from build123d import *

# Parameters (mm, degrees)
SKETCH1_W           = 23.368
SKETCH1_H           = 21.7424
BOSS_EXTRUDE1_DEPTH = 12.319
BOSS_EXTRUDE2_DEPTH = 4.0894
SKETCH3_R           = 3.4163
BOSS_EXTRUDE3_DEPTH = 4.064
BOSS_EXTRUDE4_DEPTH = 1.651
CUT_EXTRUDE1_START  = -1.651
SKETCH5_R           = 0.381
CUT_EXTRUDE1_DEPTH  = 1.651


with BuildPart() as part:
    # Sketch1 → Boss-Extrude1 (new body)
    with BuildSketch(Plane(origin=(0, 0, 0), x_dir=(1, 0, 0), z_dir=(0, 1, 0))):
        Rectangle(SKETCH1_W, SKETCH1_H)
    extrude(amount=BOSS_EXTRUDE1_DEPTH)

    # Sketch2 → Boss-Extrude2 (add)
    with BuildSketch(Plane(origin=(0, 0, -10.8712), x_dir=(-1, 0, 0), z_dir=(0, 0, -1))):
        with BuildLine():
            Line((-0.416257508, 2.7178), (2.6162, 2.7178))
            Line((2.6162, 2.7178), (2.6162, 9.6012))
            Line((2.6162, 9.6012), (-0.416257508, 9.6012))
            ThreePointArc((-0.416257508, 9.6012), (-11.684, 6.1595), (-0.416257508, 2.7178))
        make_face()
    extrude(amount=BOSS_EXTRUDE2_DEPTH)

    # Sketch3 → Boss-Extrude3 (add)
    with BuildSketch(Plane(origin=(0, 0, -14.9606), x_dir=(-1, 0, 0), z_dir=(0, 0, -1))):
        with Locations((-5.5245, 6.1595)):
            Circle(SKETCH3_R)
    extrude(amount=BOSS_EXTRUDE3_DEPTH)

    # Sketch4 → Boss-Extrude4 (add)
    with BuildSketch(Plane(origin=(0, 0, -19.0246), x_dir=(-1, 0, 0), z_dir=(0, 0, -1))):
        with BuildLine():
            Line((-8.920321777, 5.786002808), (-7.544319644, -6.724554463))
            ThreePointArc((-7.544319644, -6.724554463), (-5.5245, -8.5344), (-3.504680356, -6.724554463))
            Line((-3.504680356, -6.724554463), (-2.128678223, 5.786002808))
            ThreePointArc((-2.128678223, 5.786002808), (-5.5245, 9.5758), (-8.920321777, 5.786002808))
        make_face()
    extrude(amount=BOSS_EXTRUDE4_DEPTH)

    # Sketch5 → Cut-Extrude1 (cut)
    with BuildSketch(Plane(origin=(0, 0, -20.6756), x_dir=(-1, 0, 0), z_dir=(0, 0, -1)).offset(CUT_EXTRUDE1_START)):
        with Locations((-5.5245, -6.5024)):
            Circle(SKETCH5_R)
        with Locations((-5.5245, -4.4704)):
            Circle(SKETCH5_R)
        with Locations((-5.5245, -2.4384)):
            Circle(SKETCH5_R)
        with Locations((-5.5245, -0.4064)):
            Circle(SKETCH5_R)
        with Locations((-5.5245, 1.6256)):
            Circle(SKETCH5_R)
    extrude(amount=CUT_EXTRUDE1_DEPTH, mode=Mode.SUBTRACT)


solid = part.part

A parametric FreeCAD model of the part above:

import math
import FreeCAD as App
import Part
import Sketcher
Q = App.Units.Quantity


def add_polygon(sketch, points):
    """Adds a closed chain of lines whose ends are joined by coincident constraints."""
    first, n = sketch.GeometryCount, len(points)
    for a, b in zip(points, points[1:] + points[:1]):
        sketch.addGeometry(Part.LineSegment(App.Vector(*a, 0), App.Vector(*b, 0)), False)
    for i in range(n):
        sketch.addConstraint(Sketcher.Constraint("Coincident", first + i, 2, first + (i + 1) % n, 1))

doc = App.newDocument("Part")
body = doc.addObject("PartDesign::Body", "Body")

sketch1 = body.newObject("Sketcher::SketchObject", "Sketch")
sketch1.AttachmentSupport = (doc.getObject("XZ_Plane"), [""])
sketch1.MapMode = "FlatFace"
add_polygon(sketch1, [(-11.684, -10.8712), (-11.684, 10.8712), (11.684, 10.8712), (11.684, -10.8712)])
sketch1.addConstraint([
    Sketcher.Constraint("Vertical", 0),
    Sketcher.Constraint("Horizontal", 1),
    Sketcher.Constraint("Vertical", 2),
    Sketcher.Constraint("Horizontal", 3),
    Sketcher.Constraint("Symmetric", 0, 2, 2, 2, -1, 1),
    Sketcher.Constraint("DistanceX", 1, 1, 1, 2, Q("0.92 in")),
    Sketcher.Constraint("DistanceY", 0, 1, 0, 2, Q("0.856 in")),
])
pad1 = body.newObject("PartDesign::Pad", "Pad")
pad1.Profile = sketch1
pad1.Length = Q("0.485 in")
pad1.Reversed = True

sketch2 = body.newObject("Sketcher::SketchObject", "Sketch001")
sketch2.AttachmentSupport = (doc.getObject("XY_Plane"), [""])
sketch2.MapMode = "FlatFace"
sketch2.AttachmentOffset = App.Placement(App.Vector(0, 0, -0.428 * 25.4), App.Rotation())
sketch2.addGeometry([
    Part.LineSegment(App.Vector(0.416258, 2.7178, 0), App.Vector(-2.6162, 2.7178, 0)),
    Part.LineSegment(App.Vector(-2.6162, 2.7178, 0), App.Vector(-2.6162, 9.6012, 0)),
    Part.LineSegment(App.Vector(-2.6162, 9.6012, 0), App.Vector(0.416258, 9.6012, 0)),
    Part.ArcOfCircle(Part.Circle(App.Vector(5.5245, 6.1595, 0), App.Vector(0, 0, 1), 6.1595), math.radians(-146.029714), math.radians(146.029714)),
], False)
sketch2.addConstraint([
    Sketcher.Constraint("Coincident", 0, 2, 1, 1),
    Sketcher.Constraint("Coincident", 1, 2, 2, 1),
    Sketcher.Constraint("Coincident", 2, 2, 3, 2),
    Sketcher.Constraint("Coincident", 3, 1, 0, 1),
    Sketcher.Constraint("Horizontal", 0),
    Sketcher.Constraint("Vertical", 1),
    Sketcher.Constraint("Horizontal", 2),
    Sketcher.Constraint("Vertical", 2, 2, 3, 1),
    Sketcher.Constraint("Radius", 3, Q("0.2425 in")),
    Sketcher.Constraint("DistanceY", 1, 1, 1, 2, Q("0.271 in")),
    Sketcher.Constraint("DistanceX", 0, 2, -1, 1, Q("0.103 in")),
    Sketcher.Constraint("DistanceY", -1, 1, 0, 2, Q("0.107 in")),
    Sketcher.Constraint("DistanceX", -1, 1, 3, 3, Q("0.2175 in")),
])
pad2 = body.newObject("PartDesign::Pad", "Pad001")
pad2.Profile = sketch2
pad2.Length = Q("0.161 in")
pad2.Reversed = True

sketch3 = body.newObject("Sketcher::SketchObject", "Sketch002")
sketch3.AttachmentSupport = (doc.getObject("XY_Plane"), [""])
sketch3.MapMode = "FlatFace"
sketch3.AttachmentOffset = App.Placement(App.Vector(0, 0, -0.589 * 25.4), App.Rotation())
sketch3.addGeometry(Part.Circle(App.Vector(5.5245, 6.1595, 0), App.Vector(0, 0, 1), 3.4163), False)
sketch3.addConstraint([
    Sketcher.Constraint("Diameter", 0, Q("0.269 in")),
    Sketcher.Constraint("DistanceX", -1, 1, 0, 3, Q("0.2175 in")),
    Sketcher.Constraint("DistanceY", -1, 1, 0, 3, Q("0.2425 in")),
])
pad3 = body.newObject("PartDesign::Pad", "Pad002")
pad3.Profile = sketch3
pad3.Length = Q("0.16 in")
pad3.Reversed = True

sketch4 = body.newObject("Sketcher::SketchObject", "Sketch003")
sketch4.AttachmentSupport = (doc.getObject("XY_Plane"), [""])
sketch4.MapMode = "FlatFace"
sketch4.AttachmentOffset = App.Placement(App.Vector(0, 0, -0.749 * 25.4), App.Rotation())
sketch4.addGeometry([
    Part.LineSegment(App.Vector(8.920322, 5.786003, 0), App.Vector(7.54432, -6.724554, 0)),
    Part.ArcOfCircle(Part.Circle(App.Vector(5.5245, -6.5024, 0), App.Vector(0, 0, 1), 2.032), math.radians(-173.723422), math.radians(-6.276578)),
    Part.LineSegment(App.Vector(3.50468, -6.724554, 0), App.Vector(2.128678, 5.786003, 0)),
    Part.ArcOfCircle(Part.Circle(App.Vector(5.5245, 6.1595, 0), App.Vector(0, 0, 1), 3.4163), math.radians(-6.276578), math.radians(186.276578)),
], False)
sketch4.addConstraint([
    Sketcher.Constraint("Tangent", 0, 2, 1, 2),
    Sketcher.Constraint("Tangent", 1, 1, 2, 1),
    Sketcher.Constraint("Tangent", 2, 2, 3, 2),
    Sketcher.Constraint("Tangent", 3, 1, 0, 1),
    Sketcher.Constraint("Horizontal", 0, 2, 1, 1),
    Sketcher.Constraint("Radius", 1, Q("0.08 in")),
    Sketcher.Constraint("Radius", 3, Q("0.1345 in")),
    Sketcher.Constraint("DistanceY", 1, 3, -1, 1, Q("0.256 in")),
    Sketcher.Constraint("DistanceX", -1, 1, 1, 3, Q("0.2175 in")),
    Sketcher.Constraint("DistanceY", -1, 1, 3, 3, Q("0.2425 in")),
])
pad4 = body.newObject("PartDesign::Pad", "Pad003")
pad4.Profile = sketch4
pad4.Length = Q("0.065 in")
pad4.Reversed = True

sketch5 = body.newObject("Sketcher::SketchObject", "Sketch004")
sketch5.AttachmentSupport = (doc.getObject("XY_Plane"), [""])
sketch5.MapMode = "FlatFace"
sketch5.AttachmentOffset = App.Placement(App.Vector(0, 0, -0.749 * 25.4), App.Rotation())
sketch5.addGeometry([
    Part.Circle(App.Vector(5.5245, -6.5024, 0), App.Vector(0, 0, 1), 0.381),
    Part.Circle(App.Vector(5.5245, -4.4704, 0), App.Vector(0, 0, 1), 0.381),
    Part.Circle(App.Vector(5.5245, -2.4384, 0), App.Vector(0, 0, 1), 0.381),
    Part.Circle(App.Vector(5.5245, -0.4064, 0), App.Vector(0, 0, 1), 0.381),
    Part.Circle(App.Vector(5.5245, 1.6256, 0), App.Vector(0, 0, 1), 0.381),
], False)
sketch5.addConstraint([
    Sketcher.Constraint("Equal", 0, 1),
    Sketcher.Constraint("Equal", 1, 2),
    Sketcher.Constraint("Equal", 2, 3),
    Sketcher.Constraint("Equal", 3, 4),
    Sketcher.Constraint("Vertical", 0, 3, 1, 3),
    Sketcher.Constraint("Vertical", 1, 3, 2, 3),
    Sketcher.Constraint("Vertical", 2, 3, 3, 3),
    Sketcher.Constraint("Vertical", 3, 3, 4, 3),
    Sketcher.Constraint("Diameter", 0, Q("0.03 in")),
    Sketcher.Constraint("DistanceY", 0, 3, 1, 3, Q("0.08 in")),
    Sketcher.Constraint("DistanceY", 1, 3, 2, 3, Q("0.08 in")),
    Sketcher.Constraint("DistanceY", 2, 3, 3, 3, Q("0.08 in")),
    Sketcher.Constraint("DistanceY", 3, 3, 4, 3, Q("0.08 in")),
    Sketcher.Constraint("DistanceY", 0, 3, -1, 1, Q("0.256 in")),
    Sketcher.Constraint("DistanceX", -1, 1, 0, 3, Q("0.2175 in")),
])
pocket1 = body.newObject("PartDesign::Pocket", "Pocket")
pocket1.Profile = sketch5
pocket1.Length = Q("0.065 in")

doc.recompute()
